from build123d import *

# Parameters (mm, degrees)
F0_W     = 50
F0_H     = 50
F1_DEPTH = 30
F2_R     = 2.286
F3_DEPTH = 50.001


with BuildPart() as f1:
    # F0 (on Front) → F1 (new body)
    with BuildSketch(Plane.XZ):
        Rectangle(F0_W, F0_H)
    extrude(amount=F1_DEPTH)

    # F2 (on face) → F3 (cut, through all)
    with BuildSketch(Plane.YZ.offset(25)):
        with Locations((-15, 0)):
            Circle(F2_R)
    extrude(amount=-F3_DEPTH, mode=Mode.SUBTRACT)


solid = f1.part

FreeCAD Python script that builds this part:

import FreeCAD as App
import Part
import Sketcher
from FreeCAD import Vector
Q = App.Units.Quantity

doc = App.newDocument("Part")
params = doc.addObject("Spreadsheet::Sheet", "Params")
for row, (alias, value) in enumerate([
    ("sketch1_width", "50 mm"),
    ("pad1_length", "30 mm"),
], start=1):
    params.set(f"A{row}", alias)
    params.set(f"B{row}", "=" + value)
    params.setAlias(f"B{row}", alias)

body = doc.addObject("PartDesign::Body", "Body")

# Sketch on XZ plane
sketch1 = body.newObject("Sketcher::SketchObject", "Sketch")
sketch1.AttachmentSupport = (doc.getObject("XZ_Plane"), [""])
sketch1.MapMode = "FlatFace"
sketch1.addGeometry([
    Part.LineSegment(Vector(-25, 25, 0), Vector(-25, -25, 0)),
    Part.LineSegment(Vector(-25, -25, 0), Vector(25, -25, 0)),
    Part.LineSegment(Vector(25, -25, 0), Vector(25, 25, 0)),
    Part.LineSegment(Vector(25, 25, 0), Vector(-25, 25, 0)),
], False)
sketch1.addConstraint([
    Sketcher.Constraint("Coincident", 0, 2, 1, 1),
    Sketcher.Constraint("Coincident", 1, 2, 2, 1),
    Sketcher.Constraint("Coincident", 2, 2, 3, 1),
    Sketcher.Constraint("Coincident", 3, 2, 0, 1),
    Sketcher.Constraint("Vertical", 0),
    Sketcher.Constraint("Horizontal", 1),
    Sketcher.Constraint("Vertical", 2),
    Sketcher.Constraint("Horizontal", 3),
    Sketcher.Constraint("Symmetric", 0, 2, 2, 2, -1, 1),
    Sketcher.Constraint("Equal", 3, 0),
    Sketcher.Constraint("DistanceX", 1, 1, 1, 2, Q("50 mm")),
])
sketch1.setExpression("Constraints[10]", "Params.sketch1_width")
pad1 = body.newObject("PartDesign::Pad", "Pad")
pad1.Profile = sketch1
pad1.setExpression("Length", "Params.pad1_length")

# Sketch on YZ plane
sketch2 = body.newObject("Sketcher::SketchObject", "Sketch001")
sketch2.AttachmentSupport = (doc.getObject("YZ_Plane"), [""])
sketch2.MapMode = "FlatFace"
sketch2.AttachmentOffset = App.Placement(Vector(0, 0, 25), App.Rotation())
sketch2.addGeometry(Part.Circle(Vector(-15, 0, 0), Vector(0, 0, 1), 2.3), False)
sketch2.addConstraint([
    Sketcher.Constraint("PointOnObject", 0, 3, -1),
    Sketcher.Constraint("Diameter", 0, Q("4.572 mm")),
    Sketcher.Constraint("DistanceX", 0, 3, -1, 1, Q("15 mm")),
])
pocket1 = body.newObject("PartDesign::Pocket", "Pocket")
pocket1.Profile = sketch2
pocket1.Type = "ThroughAll"

doc.recompute()
